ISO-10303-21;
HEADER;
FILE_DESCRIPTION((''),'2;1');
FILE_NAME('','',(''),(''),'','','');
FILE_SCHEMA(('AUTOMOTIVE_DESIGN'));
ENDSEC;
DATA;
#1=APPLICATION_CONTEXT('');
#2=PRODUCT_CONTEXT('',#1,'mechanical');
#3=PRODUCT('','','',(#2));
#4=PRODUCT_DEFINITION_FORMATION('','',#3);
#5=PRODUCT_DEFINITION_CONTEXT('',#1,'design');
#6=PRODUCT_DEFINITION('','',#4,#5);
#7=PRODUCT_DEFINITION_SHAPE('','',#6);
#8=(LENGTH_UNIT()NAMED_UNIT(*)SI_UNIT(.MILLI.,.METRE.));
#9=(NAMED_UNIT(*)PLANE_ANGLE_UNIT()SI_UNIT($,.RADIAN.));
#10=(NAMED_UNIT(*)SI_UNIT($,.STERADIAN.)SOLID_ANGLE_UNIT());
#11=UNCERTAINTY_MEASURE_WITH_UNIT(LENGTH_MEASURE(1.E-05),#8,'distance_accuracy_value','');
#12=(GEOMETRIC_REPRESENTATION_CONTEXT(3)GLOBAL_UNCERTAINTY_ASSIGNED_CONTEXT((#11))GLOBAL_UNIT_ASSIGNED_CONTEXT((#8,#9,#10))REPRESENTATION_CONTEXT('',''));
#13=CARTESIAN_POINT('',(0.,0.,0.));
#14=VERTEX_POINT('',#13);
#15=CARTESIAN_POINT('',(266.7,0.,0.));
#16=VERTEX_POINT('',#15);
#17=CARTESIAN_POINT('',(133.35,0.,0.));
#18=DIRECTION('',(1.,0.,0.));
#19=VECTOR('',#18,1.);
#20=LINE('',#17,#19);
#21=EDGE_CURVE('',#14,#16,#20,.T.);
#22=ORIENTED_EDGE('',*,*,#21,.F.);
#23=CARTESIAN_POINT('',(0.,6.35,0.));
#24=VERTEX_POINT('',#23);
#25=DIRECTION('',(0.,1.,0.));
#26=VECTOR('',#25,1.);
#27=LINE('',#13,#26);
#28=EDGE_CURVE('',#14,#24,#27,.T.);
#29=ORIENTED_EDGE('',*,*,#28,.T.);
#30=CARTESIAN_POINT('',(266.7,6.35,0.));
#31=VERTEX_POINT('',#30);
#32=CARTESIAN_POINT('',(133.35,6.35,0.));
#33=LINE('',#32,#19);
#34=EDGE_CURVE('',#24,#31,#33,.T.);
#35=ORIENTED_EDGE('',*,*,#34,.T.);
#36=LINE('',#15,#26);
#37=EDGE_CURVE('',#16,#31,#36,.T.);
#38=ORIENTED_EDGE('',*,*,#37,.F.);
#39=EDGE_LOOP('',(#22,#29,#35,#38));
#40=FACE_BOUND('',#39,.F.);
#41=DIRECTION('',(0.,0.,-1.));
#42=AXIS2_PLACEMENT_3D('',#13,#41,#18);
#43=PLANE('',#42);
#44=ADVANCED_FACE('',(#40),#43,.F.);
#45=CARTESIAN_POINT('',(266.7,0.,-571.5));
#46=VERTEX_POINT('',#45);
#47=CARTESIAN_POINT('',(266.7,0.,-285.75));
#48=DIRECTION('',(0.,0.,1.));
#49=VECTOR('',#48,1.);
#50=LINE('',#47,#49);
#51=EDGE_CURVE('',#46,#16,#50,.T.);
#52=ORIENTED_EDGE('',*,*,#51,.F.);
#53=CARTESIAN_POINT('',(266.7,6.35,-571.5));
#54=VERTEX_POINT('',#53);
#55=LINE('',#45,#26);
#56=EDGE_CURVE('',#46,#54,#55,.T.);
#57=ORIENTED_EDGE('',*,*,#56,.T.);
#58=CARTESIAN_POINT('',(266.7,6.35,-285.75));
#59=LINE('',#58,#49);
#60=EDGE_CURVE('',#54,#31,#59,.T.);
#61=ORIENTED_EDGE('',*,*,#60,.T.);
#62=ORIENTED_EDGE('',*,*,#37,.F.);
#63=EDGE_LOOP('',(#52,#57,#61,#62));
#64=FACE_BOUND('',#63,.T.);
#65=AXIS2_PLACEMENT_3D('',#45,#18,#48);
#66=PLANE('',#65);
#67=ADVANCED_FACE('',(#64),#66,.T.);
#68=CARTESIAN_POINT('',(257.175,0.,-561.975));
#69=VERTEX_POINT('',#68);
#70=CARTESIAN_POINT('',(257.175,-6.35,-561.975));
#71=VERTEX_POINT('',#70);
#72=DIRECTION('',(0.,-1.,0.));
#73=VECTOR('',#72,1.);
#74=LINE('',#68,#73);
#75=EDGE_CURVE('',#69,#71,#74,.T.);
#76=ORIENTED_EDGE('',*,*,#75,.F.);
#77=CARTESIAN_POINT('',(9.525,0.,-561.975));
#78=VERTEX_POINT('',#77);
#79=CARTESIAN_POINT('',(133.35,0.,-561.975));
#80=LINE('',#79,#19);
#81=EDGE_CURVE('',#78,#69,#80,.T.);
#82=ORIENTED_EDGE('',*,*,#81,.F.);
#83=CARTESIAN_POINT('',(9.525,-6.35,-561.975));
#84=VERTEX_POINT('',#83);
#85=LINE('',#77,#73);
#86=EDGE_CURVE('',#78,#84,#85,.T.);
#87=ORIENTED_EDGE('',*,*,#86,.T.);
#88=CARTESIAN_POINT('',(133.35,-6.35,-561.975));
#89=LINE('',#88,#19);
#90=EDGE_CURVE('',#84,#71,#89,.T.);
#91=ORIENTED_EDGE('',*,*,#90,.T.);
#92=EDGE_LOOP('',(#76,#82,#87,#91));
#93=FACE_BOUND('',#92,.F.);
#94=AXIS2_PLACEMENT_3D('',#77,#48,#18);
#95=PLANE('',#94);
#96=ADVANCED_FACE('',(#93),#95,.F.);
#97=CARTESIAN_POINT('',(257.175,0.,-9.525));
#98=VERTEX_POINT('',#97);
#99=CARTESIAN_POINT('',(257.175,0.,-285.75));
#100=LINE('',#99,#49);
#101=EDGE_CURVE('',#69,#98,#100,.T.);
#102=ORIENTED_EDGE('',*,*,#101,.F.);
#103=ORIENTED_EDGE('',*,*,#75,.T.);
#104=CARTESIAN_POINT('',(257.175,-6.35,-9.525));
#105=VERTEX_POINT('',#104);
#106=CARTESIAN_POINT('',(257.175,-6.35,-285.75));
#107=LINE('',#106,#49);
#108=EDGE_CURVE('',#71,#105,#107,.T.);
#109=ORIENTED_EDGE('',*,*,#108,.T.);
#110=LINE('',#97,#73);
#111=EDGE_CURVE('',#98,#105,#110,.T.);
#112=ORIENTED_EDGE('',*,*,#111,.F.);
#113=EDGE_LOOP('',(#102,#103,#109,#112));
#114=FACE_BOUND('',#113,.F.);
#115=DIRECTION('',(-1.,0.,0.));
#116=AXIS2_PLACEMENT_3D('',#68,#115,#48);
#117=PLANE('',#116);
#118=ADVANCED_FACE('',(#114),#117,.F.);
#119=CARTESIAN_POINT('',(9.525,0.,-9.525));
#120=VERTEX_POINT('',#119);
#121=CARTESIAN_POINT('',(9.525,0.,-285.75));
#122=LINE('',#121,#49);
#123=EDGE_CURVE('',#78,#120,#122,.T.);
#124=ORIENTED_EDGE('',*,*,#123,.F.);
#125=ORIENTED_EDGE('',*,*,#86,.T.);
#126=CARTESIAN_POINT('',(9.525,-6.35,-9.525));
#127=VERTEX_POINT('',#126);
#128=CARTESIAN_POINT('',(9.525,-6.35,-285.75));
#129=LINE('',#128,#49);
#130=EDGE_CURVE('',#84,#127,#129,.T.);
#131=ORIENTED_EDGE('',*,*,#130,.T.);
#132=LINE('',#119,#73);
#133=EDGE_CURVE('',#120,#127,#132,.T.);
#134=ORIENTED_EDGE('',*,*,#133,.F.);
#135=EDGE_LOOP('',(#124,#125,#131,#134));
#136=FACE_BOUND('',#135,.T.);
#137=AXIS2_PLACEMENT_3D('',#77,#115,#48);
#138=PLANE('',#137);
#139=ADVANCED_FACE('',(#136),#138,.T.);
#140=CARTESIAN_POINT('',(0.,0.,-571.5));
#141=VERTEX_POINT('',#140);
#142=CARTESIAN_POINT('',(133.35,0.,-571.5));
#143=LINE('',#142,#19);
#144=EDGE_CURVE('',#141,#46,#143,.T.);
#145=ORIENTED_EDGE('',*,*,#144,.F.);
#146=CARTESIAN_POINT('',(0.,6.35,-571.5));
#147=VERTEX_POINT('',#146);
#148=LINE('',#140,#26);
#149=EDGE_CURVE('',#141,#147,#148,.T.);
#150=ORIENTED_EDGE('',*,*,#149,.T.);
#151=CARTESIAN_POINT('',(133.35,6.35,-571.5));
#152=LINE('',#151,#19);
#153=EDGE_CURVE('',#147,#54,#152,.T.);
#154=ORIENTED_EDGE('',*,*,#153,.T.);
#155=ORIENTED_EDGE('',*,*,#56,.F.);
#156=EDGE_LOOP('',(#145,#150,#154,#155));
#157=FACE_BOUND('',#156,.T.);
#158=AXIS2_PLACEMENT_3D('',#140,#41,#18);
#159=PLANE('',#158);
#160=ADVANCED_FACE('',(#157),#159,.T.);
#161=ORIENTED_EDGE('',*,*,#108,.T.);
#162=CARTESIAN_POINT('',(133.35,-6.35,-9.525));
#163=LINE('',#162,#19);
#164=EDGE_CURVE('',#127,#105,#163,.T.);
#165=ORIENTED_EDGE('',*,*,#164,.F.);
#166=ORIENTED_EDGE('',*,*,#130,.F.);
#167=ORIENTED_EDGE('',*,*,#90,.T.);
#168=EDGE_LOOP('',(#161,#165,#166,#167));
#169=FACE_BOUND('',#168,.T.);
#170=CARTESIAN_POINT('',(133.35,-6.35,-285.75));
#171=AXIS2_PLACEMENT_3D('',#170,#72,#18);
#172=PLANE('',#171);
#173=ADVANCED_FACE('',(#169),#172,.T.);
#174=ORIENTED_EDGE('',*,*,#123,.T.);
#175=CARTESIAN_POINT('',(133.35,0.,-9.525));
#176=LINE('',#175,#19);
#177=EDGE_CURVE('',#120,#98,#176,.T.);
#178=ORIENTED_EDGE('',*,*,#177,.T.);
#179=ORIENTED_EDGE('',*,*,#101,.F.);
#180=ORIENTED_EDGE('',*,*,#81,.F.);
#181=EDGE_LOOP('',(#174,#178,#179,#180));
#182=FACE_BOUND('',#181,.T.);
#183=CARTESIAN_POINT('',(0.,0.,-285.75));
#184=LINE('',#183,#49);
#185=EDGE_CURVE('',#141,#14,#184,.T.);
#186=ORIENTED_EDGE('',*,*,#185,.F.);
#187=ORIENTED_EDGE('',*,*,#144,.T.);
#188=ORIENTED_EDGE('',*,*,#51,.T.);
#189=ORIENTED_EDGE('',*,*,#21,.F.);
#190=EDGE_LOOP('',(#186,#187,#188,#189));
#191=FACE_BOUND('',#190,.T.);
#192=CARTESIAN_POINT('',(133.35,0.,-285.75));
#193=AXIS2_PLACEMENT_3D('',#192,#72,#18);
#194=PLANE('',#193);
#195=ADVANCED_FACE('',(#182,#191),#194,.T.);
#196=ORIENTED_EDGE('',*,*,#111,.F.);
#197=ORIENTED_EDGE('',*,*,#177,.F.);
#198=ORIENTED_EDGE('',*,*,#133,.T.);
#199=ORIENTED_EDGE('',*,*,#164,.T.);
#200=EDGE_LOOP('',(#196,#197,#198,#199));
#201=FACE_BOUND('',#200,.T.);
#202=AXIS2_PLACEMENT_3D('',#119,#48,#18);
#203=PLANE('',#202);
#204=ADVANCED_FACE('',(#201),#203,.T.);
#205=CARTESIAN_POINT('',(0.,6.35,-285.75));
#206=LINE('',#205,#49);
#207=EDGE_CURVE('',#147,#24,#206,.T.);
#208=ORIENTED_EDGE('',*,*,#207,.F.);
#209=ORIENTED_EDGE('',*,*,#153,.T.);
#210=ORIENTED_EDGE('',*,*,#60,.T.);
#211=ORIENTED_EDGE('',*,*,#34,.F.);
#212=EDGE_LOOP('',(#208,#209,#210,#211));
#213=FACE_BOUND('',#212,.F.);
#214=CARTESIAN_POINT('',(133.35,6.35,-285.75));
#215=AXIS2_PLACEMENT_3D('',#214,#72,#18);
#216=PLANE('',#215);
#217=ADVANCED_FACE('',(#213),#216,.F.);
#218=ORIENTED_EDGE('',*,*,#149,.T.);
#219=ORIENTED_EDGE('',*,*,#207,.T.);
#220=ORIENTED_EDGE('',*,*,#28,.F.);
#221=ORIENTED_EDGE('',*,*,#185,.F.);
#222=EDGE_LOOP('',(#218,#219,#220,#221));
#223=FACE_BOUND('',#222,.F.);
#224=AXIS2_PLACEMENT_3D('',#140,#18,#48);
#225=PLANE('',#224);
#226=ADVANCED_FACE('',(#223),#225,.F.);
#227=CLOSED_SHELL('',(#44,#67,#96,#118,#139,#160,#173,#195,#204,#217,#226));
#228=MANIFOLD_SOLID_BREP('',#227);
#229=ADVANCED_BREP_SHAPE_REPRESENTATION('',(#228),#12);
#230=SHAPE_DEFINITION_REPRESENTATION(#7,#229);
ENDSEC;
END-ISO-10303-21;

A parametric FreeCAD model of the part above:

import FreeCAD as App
import Part
import Sketcher
Q = App.Units.Quantity


def add_polygon(sketch, points):
    """Adds a closed chain of lines whose ends are joined by coincident constraints."""
    first, n = sketch.GeometryCount, len(points)
    for a, b in zip(points, points[1:] + points[:1]):
        sketch.addGeometry(Part.LineSegment(App.Vector(*a, 0), App.Vector(*b, 0)), False)
    for i in range(n):
        sketch.addConstraint(Sketcher.Constraint("Coincident", first + i, 2, first + (i + 1) % n, 1))

doc = App.newDocument("Part")
body = doc.addObject("PartDesign::Body", "Body")

# Sketch on XZ plane
sketch1 = body.newObject("Sketcher::SketchObject", "Sketch")
sketch1.AttachmentSupport = (doc.getObject("XZ_Plane"), [""])
sketch1.MapMode = "FlatFace"
add_polygon(sketch1, [(0, 0), (0, -572), (267, -572), (267, 0)])  # lines 0-3
sketch1.addConstraint([
    Sketcher.Constraint("Vertical", 0),
    Sketcher.Constraint("Horizontal", 1),
    Sketcher.Constraint("Vertical", 2),
    Sketcher.Constraint("Horizontal", 3),
    Sketcher.Constraint("Coincident", 3, 2, -1, 1),
    Sketcher.Constraint("DistanceX", 1, 1, 1, 2, Q("10.5 in")),
    Sketcher.Constraint("DistanceY", 0, 2, 0, 1, Q("22.5 in")),
])
pad1 = body.newObject("PartDesign::Pad", "Pad")
pad1.Profile = sketch1
pad1.Length = Q("0.25 in")
pad1.Reversed = True

# Sketch on XZ plane
sketch2 = body.newObject("Sketcher::SketchObject", "Sketch001")
sketch2.AttachmentSupport = (doc.getObject("XZ_Plane"), [""])
sketch2.MapMode = "FlatFace"
add_polygon(sketch2, [(10, -10), (10, -562), (257, -562), (257, -10)])  # lines 0-3
sketch2.addConstraint([
    Sketcher.Constraint("Vertical", 0),
    Sketcher.Constraint("Horizontal", 1),
    Sketcher.Constraint("Vertical", 2),
    Sketcher.Constraint("Horizontal", 3),
    Sketcher.Constraint("DistanceX", 1, 1, 1, 2, Q("9.75 in")),
    Sketcher.Constraint("DistanceY", 0, 2, 0, 1, Q("21.75 in")),
    Sketcher.Constraint("DistanceX", -1, 1, 0, 2, Q("0.375 in")),
    Sketcher.Constraint("DistanceY", 0, 2, -1, 1, Q("22.125 in")),
])
pad2 = body.newObject("PartDesign::Pad", "Pad001")
pad2.Profile = sketch2
pad2.Length = Q("0.25 in")

doc.recompute()
